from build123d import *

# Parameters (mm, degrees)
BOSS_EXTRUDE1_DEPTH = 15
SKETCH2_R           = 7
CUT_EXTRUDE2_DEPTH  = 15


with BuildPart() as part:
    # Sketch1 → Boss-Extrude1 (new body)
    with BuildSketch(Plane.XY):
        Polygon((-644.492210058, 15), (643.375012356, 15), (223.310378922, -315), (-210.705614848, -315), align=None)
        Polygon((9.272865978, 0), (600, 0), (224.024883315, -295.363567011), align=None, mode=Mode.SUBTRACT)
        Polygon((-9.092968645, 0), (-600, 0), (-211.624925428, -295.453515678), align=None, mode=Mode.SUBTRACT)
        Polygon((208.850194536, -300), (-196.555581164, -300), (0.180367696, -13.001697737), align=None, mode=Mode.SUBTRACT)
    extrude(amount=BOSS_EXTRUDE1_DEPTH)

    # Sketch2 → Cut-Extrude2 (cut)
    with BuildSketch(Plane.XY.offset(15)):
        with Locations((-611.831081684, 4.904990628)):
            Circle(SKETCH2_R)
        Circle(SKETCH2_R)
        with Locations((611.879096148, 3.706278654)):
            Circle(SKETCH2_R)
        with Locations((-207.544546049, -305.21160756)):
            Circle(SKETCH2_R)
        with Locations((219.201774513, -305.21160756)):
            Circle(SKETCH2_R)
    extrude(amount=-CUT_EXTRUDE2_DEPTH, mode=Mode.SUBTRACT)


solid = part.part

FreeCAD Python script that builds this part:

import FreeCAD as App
import Part
import Sketcher
Q = App.Units.Quantity

doc = App.newDocument("Part")
body = doc.addObject("PartDesign::Body", "Body")

# Sketch on XY plane
sketch1 = doc.addObject("Sketcher::SketchObject", "Sketch")
body.addObject(sketch1)
sketch1.AttachmentSupport = (doc.XY_Plane, [""])
sketch1.MapMode = "FlatFace"
sketch1.addGeometry([
    Part.LineSegment(App.Vector(643.375012, 15, 0), App.Vector(-644.49221, 15, 0)),  # 0
    Part.LineSegment(App.Vector(-644.49221, 15, 0), App.Vector(-210.705615, -315, 0)),  # 1
    Part.LineSegment(App.Vector(-210.705615, -315, 0), App.Vector(223.310379, -315, 0)),  # 2
    Part.LineSegment(App.Vector(223.310379, -315, 0), App.Vector(643.375012, 15, 0)),  # 3
    Part.LineSegment(App.Vector(208.850195, -300, 0), App.Vector(-196.555581, -300, 0)),  # 4
    Part.LineSegment(App.Vector(-196.555581, -300, 0), App.Vector(0.180368, -13.001698, 0)),  # 5
    Part.LineSegment(App.Vector(0.180368, -13.001698, 0), App.Vector(208.850195, -300, 0)),  # 6
    Part.LineSegment(App.Vector(9.272866, 0, 0), App.Vector(600, 0, 0)),  # 7
    Part.LineSegment(App.Vector(600, 0, 0), App.Vector(224.024883, -295.363567, 0)),  # 8
    Part.LineSegment(App.Vector(224.024883, -295.363567, 0), App.Vector(9.272866, 0, 0)),  # 9
    Part.LineSegment(App.Vector(-9.092969, 0, 0), App.Vector(-211.624925, -295.453516, 0)),  # 10
    Part.LineSegment(App.Vector(-211.624925, -295.453516, 0), App.Vector(-600, 0, 0)),  # 11
    Part.LineSegment(App.Vector(-600, 0, 0), App.Vector(-9.092969, 0, 0)),  # 12
], False)
sketch1.addConstraint([
    Sketcher.Constraint("Coincident", 0, 2, 1, 1),
    Sketcher.Constraint("Coincident", 1, 2, 2, 1),
    Sketcher.Constraint("Coincident", 2, 2, 3, 1),
    Sketcher.Constraint("Coincident", 3, 2, 0, 1),
    Sketcher.Constraint("Coincident", 4, 2, 5, 1),
    Sketcher.Constraint("Coincident", 5, 2, 6, 1),
    Sketcher.Constraint("Coincident", 6, 2, 4, 1),
    Sketcher.Constraint("Coincident", 7, 2, 8, 1),
    Sketcher.Constraint("Coincident", 8, 2, 9, 1),
    Sketcher.Constraint("Coincident", 9, 2, 7, 1),
    Sketcher.Constraint("Coincident", 10, 2, 11, 1),
    Sketcher.Constraint("Coincident", 11, 2, 12, 1),
    Sketcher.Constraint("Coincident", 12, 2, 10, 1),
    Sketcher.Constraint("Horizontal", 0),
    Sketcher.Constraint("Horizontal", 2),
    Sketcher.Constraint("Horizontal", 4),
    Sketcher.Constraint("Horizontal", 7),
    Sketcher.Constraint("Horizontal", 12),
    Sketcher.Constraint("Symmetric", 7, 2, 11, 2, -1, 1),
    Sketcher.Constraint("PointOnObject", 7, 2, -1),
    Sketcher.Constraint("Parallel", 3, 8),
    Sketcher.Constraint("Parallel", 6, 9),
    Sketcher.Constraint("Parallel", 5, 10),
    Sketcher.Constraint("Parallel", 1, 11),
    Sketcher.Constraint("DistanceY", -1, 1, 0, 2, Q("15 mm")),
    Sketcher.Constraint("DistanceY", 1, 2, -1, 1, Q("315 mm")),
    Sketcher.Constraint("DistanceY", 4, 2, -1, 1, Q("300 mm")),
    Sketcher.Constraint("DistanceX", -1, 1, 7, 2, Q("600 mm")),
    Sketcher.Constraint("DistanceX", 12, 1, 12, 2, Q("590.907031 mm")),
    Sketcher.Constraint("DistanceX", 1, 2, 8, 2, Q("434.730498 mm")),
    Sketcher.Constraint("DistanceX", 5, 2, 9, 2, Q("9.092498 mm")),
    Sketcher.Constraint("Distance", 3, Q("534.185638 mm")),
    Sketcher.Constraint("Distance", 5, Q("347.955542 mm")),
    Sketcher.Constraint("DistanceX", 0, 2, 0, 1, Q("1287.867222 mm")),
    Sketcher.Constraint("DistanceX", 2, 1, 2, 2, Q("434.015994 mm")),
    Sketcher.Constraint("DistanceX", 4, 2, 4, 1, Q("405.405776 mm")),
    Sketcher.Constraint("DistanceX", 7, 1, 7, 2, Q("590.727134 mm")),
    Sketcher.Constraint("DistanceX", 0, 2, -1, 1, Q("644.49221 mm")),
])
pad1 = doc.addObject("PartDesign::Pad", "Pad")
body.addObject(pad1)
pad1.Profile = sketch1
pad1.Length = 15

# Sketch on XY plane
sketch2 = doc.addObject("Sketcher::SketchObject", "Sketch001")
body.addObject(sketch2)
sketch2.AttachmentSupport = (doc.XY_Plane, [""])
sketch2.MapMode = "FlatFace"
sketch2.AttachmentOffset = App.Placement(App.Vector(0, 0, 15), App.Rotation())
sketch2.addGeometry([
    Part.Circle(App.Vector(-611.831082, 4.904991, 0), App.Vector(0, 0, 1), 7),  # 0
    Part.Circle(App.Vector(0, 0, 0), App.Vector(0, 0, 1), 7),  # 1
    Part.Circle(App.Vector(611.879096, 3.706279, 0), App.Vector(0, 0, 1), 7),  # 2
    Part.Circle(App.Vector(-207.544546, -305.211608, 0), App.Vector(0, 0, 1), 7),  # 3
    Part.Circle(App.Vector(219.201775, -305.211608, 0), App.Vector(0, 0, 1), 7),  # 4
], False)
sketch2.addConstraint([
    Sketcher.Constraint("Coincident", 1, 3, -1, 1),
    Sketcher.Constraint("Equal", 0, 1),
    Sketcher.Constraint("Equal", 1, 2),
    Sketcher.Constraint("Equal", 2, 3),
    Sketcher.Constraint("Equal", 3, 4),
    Sketcher.Constraint("Horizontal", 3, 3, 4, 3),
    Sketcher.Constraint("Diameter", 0, Q("14 mm")),
    Sketcher.Constraint("DistanceY", 3, 3, 0, 3, Q("310.116598 mm")),
    Sketcher.Constraint("DistanceX", 0, 3, -1, 1, Q("611.831082 mm")),
    Sketcher.Constraint("DistanceY", -1, 1, 0, 3, Q("4.904991 mm")),
    Sketcher.Constraint("DistanceY", -1, 1, 2, 3, Q("3.706279 mm")),
    Sketcher.Constraint("DistanceX", 3, 3, 4, 3, Q("426.746321 mm")),
    Sketcher.Constraint("DistanceX", 4, 3, 2, 3, Q("392.677322 mm")),
    Sketcher.Constraint("DistanceX", -1, 1, 2, 3, Q("611.879096 mm")),
])
pocket1 = doc.addObject("PartDesign::Pocket", "Pocket")
body.addObject(pocket1)
pocket1.Profile = sketch2
pocket1.Length = 15

doc.recompute()
